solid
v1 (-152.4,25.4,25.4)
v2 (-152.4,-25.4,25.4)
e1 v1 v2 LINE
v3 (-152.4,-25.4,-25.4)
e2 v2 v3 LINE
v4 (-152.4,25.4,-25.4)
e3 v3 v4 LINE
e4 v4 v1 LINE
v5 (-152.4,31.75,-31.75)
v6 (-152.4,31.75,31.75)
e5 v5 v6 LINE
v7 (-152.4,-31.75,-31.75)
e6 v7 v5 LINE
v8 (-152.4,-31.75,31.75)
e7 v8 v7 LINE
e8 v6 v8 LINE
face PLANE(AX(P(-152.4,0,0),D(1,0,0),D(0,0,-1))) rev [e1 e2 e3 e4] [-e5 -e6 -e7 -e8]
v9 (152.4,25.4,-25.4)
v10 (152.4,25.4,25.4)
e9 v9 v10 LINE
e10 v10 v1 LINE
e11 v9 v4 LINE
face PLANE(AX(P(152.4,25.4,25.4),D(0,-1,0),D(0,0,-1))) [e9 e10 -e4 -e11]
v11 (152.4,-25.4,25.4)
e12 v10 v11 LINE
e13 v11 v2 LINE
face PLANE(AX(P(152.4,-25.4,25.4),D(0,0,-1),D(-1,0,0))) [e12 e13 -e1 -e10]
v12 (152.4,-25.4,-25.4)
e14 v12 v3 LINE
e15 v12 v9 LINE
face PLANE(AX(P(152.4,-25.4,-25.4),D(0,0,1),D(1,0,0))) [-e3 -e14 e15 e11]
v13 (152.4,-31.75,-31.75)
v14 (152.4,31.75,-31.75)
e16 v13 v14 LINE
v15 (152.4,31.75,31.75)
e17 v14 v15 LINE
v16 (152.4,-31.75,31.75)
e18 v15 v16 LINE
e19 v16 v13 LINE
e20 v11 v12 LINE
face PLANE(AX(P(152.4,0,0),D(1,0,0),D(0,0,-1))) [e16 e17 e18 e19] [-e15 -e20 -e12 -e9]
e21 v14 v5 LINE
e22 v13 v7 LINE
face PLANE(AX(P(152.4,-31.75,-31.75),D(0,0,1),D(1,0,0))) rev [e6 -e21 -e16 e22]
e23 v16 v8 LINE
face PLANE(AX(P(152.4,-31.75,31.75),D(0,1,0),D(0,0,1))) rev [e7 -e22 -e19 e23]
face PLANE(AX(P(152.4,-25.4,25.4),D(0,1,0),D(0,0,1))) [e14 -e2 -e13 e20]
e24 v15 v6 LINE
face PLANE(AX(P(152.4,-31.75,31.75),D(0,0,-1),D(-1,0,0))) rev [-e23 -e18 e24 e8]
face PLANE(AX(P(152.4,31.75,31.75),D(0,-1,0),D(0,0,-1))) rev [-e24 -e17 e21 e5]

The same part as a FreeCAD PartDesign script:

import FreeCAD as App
import Part
import Sketcher
Q = App.Units.Quantity


def add_polygon(sketch, points):
    """Adds a closed chain of lines whose ends are joined by coincident constraints."""
    first, n = sketch.GeometryCount, len(points)
    for a, b in zip(points, points[1:] + points[:1]):
        sketch.addGeometry(Part.LineSegment(App.Vector(*a, 0), App.Vector(*b, 0)), False)
    for i in range(n):
        sketch.addConstraint(Sketcher.Constraint("Coincident", first + i, 2, first + (i + 1) % n, 1))

doc = App.newDocument("Part")
body = doc.addObject("PartDesign::Body", "Body")

sketch1 = doc.addObject("Sketcher::SketchObject", "Sketch")
body.addObject(sketch1)
sketch1.AttachmentSupport = (doc.YZ_Plane, [""])
sketch1.MapMode = "FlatFace"
add_polygon(sketch1, [(31.75, 31.75), (-31.75, 31.75), (-31.75, -31.75), (31.75, -31.75)])
add_polygon(sketch1, [(-25.4, -25.4), (-25.4, 25.4), (25.4, 25.4), (25.4, -25.4)])
sketch1.addConstraint([
    Sketcher.Constraint("Horizontal", 0),
    Sketcher.Constraint("Vertical", 1),
    Sketcher.Constraint("Horizontal", 2),
    Sketcher.Constraint("Vertical", 3),
    Sketcher.Constraint("Vertical", 4),
    Sketcher.Constraint("Horizontal", 5),
    Sketcher.Constraint("Vertical", 6),
    Sketcher.Constraint("Horizontal", 7),
    Sketcher.Constraint("Symmetric", 0, 2, 2, 2, -1, 1),
    Sketcher.Constraint("Symmetric", 4, 2, 6, 2, -1, 1),
    Sketcher.Constraint("Equal", 2, 1),
    Sketcher.Constraint("Equal", 7, 4),
    Sketcher.Constraint("DistanceX", 5, 1, 5, 2, Q("2 in")),
    Sketcher.Constraint("DistanceX", 0, 2, 0, 1, Q("2.5 in")),
])
pad1 = doc.addObject("PartDesign::Pad", "Pad")
body.addObject(pad1)
pad1.Profile = sketch1
pad1.Length = Q("12 in")
pad1.Midplane = True

doc.recompute()
